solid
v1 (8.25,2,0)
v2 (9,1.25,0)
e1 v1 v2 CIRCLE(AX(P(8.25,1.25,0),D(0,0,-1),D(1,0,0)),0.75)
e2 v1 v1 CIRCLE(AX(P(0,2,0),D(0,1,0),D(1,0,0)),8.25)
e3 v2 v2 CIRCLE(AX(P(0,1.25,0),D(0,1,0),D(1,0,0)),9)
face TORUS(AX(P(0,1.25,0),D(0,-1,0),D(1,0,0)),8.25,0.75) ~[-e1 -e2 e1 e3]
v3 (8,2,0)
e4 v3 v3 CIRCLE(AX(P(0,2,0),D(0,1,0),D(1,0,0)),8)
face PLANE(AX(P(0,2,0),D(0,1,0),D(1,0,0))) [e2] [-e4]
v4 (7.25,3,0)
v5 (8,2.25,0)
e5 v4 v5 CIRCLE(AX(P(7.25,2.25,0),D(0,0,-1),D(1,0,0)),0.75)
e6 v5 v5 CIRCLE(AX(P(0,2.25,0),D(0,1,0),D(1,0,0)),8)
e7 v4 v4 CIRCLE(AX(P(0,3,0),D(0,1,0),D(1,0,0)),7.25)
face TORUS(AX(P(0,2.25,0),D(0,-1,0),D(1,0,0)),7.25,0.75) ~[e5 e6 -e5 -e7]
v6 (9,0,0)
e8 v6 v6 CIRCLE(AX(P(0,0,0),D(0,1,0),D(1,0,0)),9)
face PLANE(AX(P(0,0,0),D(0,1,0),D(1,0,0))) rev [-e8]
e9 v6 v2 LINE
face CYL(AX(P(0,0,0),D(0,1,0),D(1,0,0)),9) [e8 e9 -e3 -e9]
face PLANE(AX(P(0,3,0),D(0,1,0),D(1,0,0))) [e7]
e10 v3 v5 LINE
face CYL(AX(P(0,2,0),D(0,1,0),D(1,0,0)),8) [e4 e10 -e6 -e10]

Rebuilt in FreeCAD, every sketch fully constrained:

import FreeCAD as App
import Part
import Sketcher

V = App.Vector


def edges_at(feature, points):
    """Names of the edges that pass closest to the given points."""
    edges = feature.Shape.Edges
    near = lambda p: min(range(len(edges)), key=lambda i: edges[i].distToShape(Part.Vertex(*p))[0])
    return sorted({f"Edge{near(p) + 1}" for p in points})

doc = App.newDocument("Part")
params = doc.addObject("Spreadsheet::Sheet", "Params")
for row, (alias, value) in enumerate([
    ("sketch1_width", "1 mm"),
    ("sketch1_height", "2 mm"),
    ("sketch1_width2", "9 mm"),
    ("revolution_angle", "360 deg"),
    ("fillet_radius", "0.75 mm"),
], start=1):
    params.set(f"A{row}", alias)
    params.set(f"B{row}", "=" + value)
    params.setAlias(f"B{row}", alias)

body = doc.addObject("PartDesign::Body", "Body")

sketch1 = body.newObject("Sketcher::SketchObject", "Sketch")
sketch1.AttachmentSupport = (doc.getObject("XY_Plane"), [""])
sketch1.MapMode = "FlatFace"
sketch1.addGeometry(Part.LineSegment(V(0, 3, 0), V(0, 0, 0)), False)
sketch1.addGeometry(Part.LineSegment(V(0, 0, 0), V(9, 0, 0)), False)
sketch1.addGeometry(Part.LineSegment(V(9, 0, 0), V(9, 2, 0)), False)
sketch1.addGeometry(Part.LineSegment(V(9, 2, 0), V(8, 2, 0)), False)
sketch1.addGeometry(Part.LineSegment(V(8, 2, 0), V(8, 3, 0)), False)
sketch1.addGeometry(Part.LineSegment(V(8, 3, 0), V(0, 3, 0)), False)
sketch1.addConstraint(Sketcher.Constraint("Coincident", 0, 2, 1, 1))
sketch1.addConstraint(Sketcher.Constraint("Coincident", 1, 2, 2, 1))
sketch1.addConstraint(Sketcher.Constraint("Coincident", 2, 2, 3, 1))
sketch1.addConstraint(Sketcher.Constraint("Coincident", 3, 2, 4, 1))
sketch1.addConstraint(Sketcher.Constraint("Coincident", 4, 2, 5, 1))
sketch1.addConstraint(Sketcher.Constraint("Coincident", 5, 2, 0, 1))
sketch1.addConstraint(Sketcher.Constraint("Vertical", 0))
sketch1.addConstraint(Sketcher.Constraint("Horizontal", 1))
sketch1.addConstraint(Sketcher.Constraint("Vertical", 2))
sketch1.addConstraint(Sketcher.Constraint("Horizontal", 3))
sketch1.addConstraint(Sketcher.Constraint("Vertical", 4))
sketch1.addConstraint(Sketcher.Constraint("Horizontal", 5))
sketch1.addConstraint(Sketcher.Constraint("Coincident", 0, 2, -1, 1))
sketch1.addConstraint(Sketcher.Constraint("Equal", 3, 4))
sketch1.addConstraint(Sketcher.Constraint("DistanceX", 3, 2, 3, 1, 1.0))
sketch1.addConstraint(Sketcher.Constraint("DistanceY", 2, 1, 2, 2, 2.0))
sketch1.addConstraint(Sketcher.Constraint("DistanceX", 1, 1, 1, 2, 9.0))
sketch1.setExpression("Constraints[14]", "Params.sketch1_width")
sketch1.setExpression("Constraints[15]", "Params.sketch1_height")
sketch1.setExpression("Constraints[16]", "Params.sketch1_width2")
revolution = body.newObject("PartDesign::Revolution", "Revolution")
revolution.Profile = sketch1
revolution.ReferenceAxis = (sketch1, ["V_Axis"])
revolution.setExpression("Angle", "Params.revolution_angle")
doc.recompute()

fillet = body.newObject("PartDesign::Fillet", "Fillet")
fillet.Base = (revolution, edges_at(revolution, [(-9, 2, 0), (-8, 3, 0)]))
fillet.setExpression("Radius", "Params.fillet_radius")

doc.recompute()
